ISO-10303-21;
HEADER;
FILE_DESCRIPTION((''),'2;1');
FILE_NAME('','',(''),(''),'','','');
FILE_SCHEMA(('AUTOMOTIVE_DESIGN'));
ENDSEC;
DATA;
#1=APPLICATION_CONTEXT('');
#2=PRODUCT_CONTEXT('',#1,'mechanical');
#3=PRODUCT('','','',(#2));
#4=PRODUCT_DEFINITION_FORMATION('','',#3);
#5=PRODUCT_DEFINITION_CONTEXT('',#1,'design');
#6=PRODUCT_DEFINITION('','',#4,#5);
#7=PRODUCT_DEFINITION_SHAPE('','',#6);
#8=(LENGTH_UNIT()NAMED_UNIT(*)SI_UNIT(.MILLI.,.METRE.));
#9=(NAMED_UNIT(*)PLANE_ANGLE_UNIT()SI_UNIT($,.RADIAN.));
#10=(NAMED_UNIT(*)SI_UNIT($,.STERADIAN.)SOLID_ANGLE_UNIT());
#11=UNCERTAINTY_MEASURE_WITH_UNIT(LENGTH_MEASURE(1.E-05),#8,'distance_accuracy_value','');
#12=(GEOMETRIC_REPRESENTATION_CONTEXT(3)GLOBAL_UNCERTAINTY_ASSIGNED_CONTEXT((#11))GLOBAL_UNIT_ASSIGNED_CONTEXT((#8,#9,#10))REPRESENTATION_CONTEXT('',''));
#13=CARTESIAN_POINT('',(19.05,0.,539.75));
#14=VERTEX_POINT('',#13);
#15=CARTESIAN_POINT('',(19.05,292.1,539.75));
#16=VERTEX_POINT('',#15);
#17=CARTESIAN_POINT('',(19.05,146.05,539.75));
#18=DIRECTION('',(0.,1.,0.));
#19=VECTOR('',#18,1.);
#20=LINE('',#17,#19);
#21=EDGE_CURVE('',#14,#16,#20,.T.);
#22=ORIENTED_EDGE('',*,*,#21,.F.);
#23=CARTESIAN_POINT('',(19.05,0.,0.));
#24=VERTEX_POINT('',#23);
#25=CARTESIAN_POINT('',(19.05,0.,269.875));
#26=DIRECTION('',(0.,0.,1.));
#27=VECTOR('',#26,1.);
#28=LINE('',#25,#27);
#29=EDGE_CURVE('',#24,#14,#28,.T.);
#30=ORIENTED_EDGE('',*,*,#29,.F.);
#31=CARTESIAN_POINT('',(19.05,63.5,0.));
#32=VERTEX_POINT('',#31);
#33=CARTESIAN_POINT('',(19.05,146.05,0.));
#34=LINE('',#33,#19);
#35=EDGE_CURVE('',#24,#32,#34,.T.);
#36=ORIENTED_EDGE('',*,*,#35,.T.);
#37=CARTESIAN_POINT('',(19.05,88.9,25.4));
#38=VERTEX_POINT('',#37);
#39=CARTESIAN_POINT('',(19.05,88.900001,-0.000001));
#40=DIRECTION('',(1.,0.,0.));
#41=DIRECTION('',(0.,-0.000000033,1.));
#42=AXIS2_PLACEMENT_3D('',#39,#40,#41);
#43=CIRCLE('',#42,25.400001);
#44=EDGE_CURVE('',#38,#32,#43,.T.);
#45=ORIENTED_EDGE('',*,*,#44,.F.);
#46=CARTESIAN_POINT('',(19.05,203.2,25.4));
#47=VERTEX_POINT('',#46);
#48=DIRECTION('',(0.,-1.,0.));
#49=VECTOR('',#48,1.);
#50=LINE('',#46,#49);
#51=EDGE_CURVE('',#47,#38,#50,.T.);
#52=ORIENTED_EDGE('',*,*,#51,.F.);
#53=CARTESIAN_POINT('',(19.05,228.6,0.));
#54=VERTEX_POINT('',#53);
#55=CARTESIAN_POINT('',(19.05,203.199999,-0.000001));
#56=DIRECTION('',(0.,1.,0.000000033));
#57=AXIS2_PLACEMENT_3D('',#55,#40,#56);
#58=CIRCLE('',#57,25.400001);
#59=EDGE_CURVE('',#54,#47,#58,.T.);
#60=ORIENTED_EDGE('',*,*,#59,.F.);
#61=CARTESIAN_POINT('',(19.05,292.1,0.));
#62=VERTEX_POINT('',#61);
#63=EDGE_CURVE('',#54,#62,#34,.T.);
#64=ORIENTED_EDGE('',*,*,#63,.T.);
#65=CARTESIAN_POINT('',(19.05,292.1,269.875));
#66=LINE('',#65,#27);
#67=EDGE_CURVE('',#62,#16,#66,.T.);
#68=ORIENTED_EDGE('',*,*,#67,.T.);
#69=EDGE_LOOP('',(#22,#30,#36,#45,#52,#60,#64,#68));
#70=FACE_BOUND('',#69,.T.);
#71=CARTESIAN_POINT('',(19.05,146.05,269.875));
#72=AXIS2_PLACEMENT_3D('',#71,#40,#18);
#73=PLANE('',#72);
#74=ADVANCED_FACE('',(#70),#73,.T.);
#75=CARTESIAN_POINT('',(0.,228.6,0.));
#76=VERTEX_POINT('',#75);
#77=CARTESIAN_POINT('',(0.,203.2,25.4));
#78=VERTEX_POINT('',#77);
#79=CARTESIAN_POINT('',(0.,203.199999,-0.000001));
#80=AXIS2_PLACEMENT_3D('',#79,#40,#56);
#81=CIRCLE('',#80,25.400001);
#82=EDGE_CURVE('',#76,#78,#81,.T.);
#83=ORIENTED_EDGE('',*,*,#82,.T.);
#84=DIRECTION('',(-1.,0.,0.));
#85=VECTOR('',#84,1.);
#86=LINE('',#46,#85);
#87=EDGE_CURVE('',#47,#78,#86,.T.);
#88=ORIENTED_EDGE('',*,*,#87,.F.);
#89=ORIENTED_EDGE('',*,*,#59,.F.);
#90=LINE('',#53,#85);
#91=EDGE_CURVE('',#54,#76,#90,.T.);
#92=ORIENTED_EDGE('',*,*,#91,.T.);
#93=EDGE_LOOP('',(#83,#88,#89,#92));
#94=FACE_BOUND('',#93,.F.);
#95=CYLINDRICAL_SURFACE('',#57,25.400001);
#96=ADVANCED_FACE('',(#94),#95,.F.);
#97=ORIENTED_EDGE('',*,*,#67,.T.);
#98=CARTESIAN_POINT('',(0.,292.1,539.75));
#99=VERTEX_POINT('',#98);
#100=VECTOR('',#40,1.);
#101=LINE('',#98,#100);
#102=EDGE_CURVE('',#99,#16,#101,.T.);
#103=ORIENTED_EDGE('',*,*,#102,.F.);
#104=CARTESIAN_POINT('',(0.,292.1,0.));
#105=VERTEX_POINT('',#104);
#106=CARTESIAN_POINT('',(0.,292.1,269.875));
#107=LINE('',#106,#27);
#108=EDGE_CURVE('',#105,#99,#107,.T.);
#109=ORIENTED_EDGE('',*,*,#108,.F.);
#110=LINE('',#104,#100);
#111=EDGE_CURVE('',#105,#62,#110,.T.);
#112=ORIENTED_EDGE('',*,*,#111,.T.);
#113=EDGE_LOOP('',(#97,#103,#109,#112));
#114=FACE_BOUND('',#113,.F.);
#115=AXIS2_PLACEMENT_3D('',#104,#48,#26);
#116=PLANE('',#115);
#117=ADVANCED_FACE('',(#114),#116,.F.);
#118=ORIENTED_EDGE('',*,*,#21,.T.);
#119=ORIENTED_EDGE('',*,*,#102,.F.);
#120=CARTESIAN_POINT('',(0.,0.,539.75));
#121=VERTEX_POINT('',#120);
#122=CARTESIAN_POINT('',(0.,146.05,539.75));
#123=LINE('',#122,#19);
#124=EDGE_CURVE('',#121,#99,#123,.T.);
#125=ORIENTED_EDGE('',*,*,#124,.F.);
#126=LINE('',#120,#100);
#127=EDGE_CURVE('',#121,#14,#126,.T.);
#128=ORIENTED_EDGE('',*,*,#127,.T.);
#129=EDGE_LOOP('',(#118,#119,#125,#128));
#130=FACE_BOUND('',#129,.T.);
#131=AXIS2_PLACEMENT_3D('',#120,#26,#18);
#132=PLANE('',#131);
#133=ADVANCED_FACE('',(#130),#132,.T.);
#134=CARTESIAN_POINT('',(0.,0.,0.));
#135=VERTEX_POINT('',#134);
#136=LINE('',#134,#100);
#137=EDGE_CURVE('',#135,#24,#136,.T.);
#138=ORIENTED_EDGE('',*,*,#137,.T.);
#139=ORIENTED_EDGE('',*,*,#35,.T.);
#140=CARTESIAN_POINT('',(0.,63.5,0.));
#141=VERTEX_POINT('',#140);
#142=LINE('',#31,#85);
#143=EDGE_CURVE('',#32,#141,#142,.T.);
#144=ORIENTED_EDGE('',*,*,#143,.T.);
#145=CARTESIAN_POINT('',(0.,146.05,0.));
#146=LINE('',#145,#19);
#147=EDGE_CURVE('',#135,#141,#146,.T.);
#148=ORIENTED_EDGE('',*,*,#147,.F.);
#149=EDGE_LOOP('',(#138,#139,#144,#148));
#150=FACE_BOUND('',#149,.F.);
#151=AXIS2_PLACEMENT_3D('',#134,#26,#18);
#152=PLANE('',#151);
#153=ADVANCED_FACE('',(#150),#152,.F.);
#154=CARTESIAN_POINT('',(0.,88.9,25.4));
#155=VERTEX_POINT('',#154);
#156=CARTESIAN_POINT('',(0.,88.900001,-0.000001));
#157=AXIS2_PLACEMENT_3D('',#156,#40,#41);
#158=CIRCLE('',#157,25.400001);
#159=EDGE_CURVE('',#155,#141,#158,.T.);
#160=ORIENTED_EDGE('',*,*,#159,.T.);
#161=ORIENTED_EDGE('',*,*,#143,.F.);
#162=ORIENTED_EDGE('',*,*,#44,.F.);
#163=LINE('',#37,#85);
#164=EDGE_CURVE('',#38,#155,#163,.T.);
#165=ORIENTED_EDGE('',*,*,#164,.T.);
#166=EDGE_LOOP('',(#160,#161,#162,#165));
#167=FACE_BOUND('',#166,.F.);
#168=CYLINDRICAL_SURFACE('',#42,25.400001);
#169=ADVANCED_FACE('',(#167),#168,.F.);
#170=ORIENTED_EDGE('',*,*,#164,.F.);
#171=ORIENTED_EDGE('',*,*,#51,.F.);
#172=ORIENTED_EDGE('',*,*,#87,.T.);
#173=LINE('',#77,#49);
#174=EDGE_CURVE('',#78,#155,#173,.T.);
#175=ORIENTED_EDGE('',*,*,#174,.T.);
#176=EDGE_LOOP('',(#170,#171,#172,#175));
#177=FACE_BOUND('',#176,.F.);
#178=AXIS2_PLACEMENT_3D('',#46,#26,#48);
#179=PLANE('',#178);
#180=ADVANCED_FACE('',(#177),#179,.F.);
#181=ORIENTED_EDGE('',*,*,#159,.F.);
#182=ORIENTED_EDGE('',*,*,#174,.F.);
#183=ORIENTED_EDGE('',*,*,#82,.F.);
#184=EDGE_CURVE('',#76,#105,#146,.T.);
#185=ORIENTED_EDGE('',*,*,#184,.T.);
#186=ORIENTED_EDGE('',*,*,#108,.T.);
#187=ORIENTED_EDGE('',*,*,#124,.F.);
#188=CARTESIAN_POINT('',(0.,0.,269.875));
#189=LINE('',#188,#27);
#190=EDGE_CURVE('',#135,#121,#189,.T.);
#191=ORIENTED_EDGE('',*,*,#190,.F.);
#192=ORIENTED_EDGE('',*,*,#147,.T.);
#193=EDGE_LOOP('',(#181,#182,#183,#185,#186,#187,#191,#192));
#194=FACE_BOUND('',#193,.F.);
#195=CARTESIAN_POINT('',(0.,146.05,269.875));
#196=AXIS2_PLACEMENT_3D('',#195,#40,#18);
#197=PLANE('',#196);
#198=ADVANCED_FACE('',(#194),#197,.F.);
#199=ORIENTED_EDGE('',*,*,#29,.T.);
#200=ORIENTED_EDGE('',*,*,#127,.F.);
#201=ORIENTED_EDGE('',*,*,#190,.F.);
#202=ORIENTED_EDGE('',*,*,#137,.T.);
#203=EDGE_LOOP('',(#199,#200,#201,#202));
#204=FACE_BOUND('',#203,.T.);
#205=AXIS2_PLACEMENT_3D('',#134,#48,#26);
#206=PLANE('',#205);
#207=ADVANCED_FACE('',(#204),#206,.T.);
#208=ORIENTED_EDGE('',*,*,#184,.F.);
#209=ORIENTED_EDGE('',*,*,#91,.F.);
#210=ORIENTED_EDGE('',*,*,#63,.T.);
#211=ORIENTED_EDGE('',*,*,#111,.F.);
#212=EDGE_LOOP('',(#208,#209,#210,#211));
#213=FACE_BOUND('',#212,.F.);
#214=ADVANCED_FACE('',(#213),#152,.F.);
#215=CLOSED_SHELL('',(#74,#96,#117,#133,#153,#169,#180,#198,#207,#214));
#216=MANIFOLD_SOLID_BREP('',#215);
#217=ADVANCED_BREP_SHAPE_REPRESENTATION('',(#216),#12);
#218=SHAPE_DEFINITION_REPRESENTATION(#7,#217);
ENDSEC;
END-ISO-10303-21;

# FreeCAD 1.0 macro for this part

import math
import FreeCAD as App
import Part
import Sketcher

V = App.Vector
Q = App.Units.Quantity

doc = App.newDocument("Part")
body = doc.addObject("PartDesign::Body", "Body")

# Sketch on YZ plane
sketch1 = body.newObject("Sketcher::SketchObject", "Sketch")
sketch1.AttachmentSupport = (doc.getObject("YZ_Plane"), [""])
sketch1.MapMode = "FlatFace"
sketch1.addGeometry([
    Part.LineSegment(V(0, 539.75, 0), V(0, 0, 0)),
    Part.LineSegment(V(0, 0, 0), V(292.1, 0, 0)),
    Part.LineSegment(V(292.1, 0, 0), V(292.1, 539.75, 0)),
    Part.LineSegment(V(292.1, 539.75, 0), V(0, 539.75, 0)),
], False)
sketch1.addConstraint([
    Sketcher.Constraint("Coincident", 0, 2, 1, 1),
    Sketcher.Constraint("Coincident", 1, 2, 2, 1),
    Sketcher.Constraint("Coincident", 2, 2, 3, 1),
    Sketcher.Constraint("Coincident", 3, 2, 0, 1),
    Sketcher.Constraint("Vertical", 0),
    Sketcher.Constraint("Horizontal", 1),
    Sketcher.Constraint("Vertical", 2),
    Sketcher.Constraint("Horizontal", 3),
    Sketcher.Constraint("Coincident", 0, 2, -1, 1),
    Sketcher.Constraint("DistanceX", 1, 1, 1, 2, Q("11.5 in")),
    Sketcher.Constraint("DistanceY", 0, 2, 0, 1, Q("21.25 in")),
])
pad1 = body.newObject("PartDesign::Pad", "Pad")
pad1.Profile = sketch1
pad1.Length = Q("0.75 in")

# Sketch on YZ plane
sketch2 = body.newObject("Sketcher::SketchObject", "Sketch001")
sketch2.AttachmentSupport = (doc.getObject("YZ_Plane"), [""])
sketch2.MapMode = "FlatFace"
sketch2.AttachmentOffset = App.Placement(V(0, 0, 0.75 * 25.4), App.Rotation())
sketch2.addGeometry([
    Part.ArcOfCircle(Part.Circle(V(88.900001, -0.000001, 0), V(0, 0, 1), 25.400001), math.radians(90.000002), math.radians(179.999998)),
    Part.LineSegment(V(63.5, 0, 0), V(228.6, 0, 0)),
    Part.ArcOfCircle(Part.Circle(V(203.199999, -0.000001, 0), V(0, 0, 1), 25.400001), math.radians(0.000002), math.radians(89.999998)),
    Part.LineSegment(V(203.2, 25.4, 0), V(88.9, 25.4, 0)),
], False)
sketch2.addConstraint([
    Sketcher.Constraint("Coincident", 0, 2, 1, 1),
    Sketcher.Constraint("Coincident", 1, 2, 2, 1),
    Sketcher.Constraint("Tangent", 2, 2, 3, 1),
    Sketcher.Constraint("Tangent", 3, 2, 0, 1),
    Sketcher.Constraint("Horizontal", 1),
    Sketcher.Constraint("Horizontal", 3),
    Sketcher.Constraint("Equal", 0, 2),
    Sketcher.Constraint("PointOnObject", 0, 3, -1),
    Sketcher.Constraint("PointOnObject", 0, 2, -1),
    Sketcher.Constraint("Radius", 0, Q("1 in")),
    Sketcher.Constraint("DistanceX", 1, 1, 1, 2, Q("6.5 in")),
    Sketcher.Constraint("DistanceX", -1, 1, 2, 3, Q("8 in")),
])
pocket1 = body.newObject("PartDesign::Pocket", "Pocket")
pocket1.Profile = sketch2
pocket1.Length = Q("0.75 in")

doc.recompute()
